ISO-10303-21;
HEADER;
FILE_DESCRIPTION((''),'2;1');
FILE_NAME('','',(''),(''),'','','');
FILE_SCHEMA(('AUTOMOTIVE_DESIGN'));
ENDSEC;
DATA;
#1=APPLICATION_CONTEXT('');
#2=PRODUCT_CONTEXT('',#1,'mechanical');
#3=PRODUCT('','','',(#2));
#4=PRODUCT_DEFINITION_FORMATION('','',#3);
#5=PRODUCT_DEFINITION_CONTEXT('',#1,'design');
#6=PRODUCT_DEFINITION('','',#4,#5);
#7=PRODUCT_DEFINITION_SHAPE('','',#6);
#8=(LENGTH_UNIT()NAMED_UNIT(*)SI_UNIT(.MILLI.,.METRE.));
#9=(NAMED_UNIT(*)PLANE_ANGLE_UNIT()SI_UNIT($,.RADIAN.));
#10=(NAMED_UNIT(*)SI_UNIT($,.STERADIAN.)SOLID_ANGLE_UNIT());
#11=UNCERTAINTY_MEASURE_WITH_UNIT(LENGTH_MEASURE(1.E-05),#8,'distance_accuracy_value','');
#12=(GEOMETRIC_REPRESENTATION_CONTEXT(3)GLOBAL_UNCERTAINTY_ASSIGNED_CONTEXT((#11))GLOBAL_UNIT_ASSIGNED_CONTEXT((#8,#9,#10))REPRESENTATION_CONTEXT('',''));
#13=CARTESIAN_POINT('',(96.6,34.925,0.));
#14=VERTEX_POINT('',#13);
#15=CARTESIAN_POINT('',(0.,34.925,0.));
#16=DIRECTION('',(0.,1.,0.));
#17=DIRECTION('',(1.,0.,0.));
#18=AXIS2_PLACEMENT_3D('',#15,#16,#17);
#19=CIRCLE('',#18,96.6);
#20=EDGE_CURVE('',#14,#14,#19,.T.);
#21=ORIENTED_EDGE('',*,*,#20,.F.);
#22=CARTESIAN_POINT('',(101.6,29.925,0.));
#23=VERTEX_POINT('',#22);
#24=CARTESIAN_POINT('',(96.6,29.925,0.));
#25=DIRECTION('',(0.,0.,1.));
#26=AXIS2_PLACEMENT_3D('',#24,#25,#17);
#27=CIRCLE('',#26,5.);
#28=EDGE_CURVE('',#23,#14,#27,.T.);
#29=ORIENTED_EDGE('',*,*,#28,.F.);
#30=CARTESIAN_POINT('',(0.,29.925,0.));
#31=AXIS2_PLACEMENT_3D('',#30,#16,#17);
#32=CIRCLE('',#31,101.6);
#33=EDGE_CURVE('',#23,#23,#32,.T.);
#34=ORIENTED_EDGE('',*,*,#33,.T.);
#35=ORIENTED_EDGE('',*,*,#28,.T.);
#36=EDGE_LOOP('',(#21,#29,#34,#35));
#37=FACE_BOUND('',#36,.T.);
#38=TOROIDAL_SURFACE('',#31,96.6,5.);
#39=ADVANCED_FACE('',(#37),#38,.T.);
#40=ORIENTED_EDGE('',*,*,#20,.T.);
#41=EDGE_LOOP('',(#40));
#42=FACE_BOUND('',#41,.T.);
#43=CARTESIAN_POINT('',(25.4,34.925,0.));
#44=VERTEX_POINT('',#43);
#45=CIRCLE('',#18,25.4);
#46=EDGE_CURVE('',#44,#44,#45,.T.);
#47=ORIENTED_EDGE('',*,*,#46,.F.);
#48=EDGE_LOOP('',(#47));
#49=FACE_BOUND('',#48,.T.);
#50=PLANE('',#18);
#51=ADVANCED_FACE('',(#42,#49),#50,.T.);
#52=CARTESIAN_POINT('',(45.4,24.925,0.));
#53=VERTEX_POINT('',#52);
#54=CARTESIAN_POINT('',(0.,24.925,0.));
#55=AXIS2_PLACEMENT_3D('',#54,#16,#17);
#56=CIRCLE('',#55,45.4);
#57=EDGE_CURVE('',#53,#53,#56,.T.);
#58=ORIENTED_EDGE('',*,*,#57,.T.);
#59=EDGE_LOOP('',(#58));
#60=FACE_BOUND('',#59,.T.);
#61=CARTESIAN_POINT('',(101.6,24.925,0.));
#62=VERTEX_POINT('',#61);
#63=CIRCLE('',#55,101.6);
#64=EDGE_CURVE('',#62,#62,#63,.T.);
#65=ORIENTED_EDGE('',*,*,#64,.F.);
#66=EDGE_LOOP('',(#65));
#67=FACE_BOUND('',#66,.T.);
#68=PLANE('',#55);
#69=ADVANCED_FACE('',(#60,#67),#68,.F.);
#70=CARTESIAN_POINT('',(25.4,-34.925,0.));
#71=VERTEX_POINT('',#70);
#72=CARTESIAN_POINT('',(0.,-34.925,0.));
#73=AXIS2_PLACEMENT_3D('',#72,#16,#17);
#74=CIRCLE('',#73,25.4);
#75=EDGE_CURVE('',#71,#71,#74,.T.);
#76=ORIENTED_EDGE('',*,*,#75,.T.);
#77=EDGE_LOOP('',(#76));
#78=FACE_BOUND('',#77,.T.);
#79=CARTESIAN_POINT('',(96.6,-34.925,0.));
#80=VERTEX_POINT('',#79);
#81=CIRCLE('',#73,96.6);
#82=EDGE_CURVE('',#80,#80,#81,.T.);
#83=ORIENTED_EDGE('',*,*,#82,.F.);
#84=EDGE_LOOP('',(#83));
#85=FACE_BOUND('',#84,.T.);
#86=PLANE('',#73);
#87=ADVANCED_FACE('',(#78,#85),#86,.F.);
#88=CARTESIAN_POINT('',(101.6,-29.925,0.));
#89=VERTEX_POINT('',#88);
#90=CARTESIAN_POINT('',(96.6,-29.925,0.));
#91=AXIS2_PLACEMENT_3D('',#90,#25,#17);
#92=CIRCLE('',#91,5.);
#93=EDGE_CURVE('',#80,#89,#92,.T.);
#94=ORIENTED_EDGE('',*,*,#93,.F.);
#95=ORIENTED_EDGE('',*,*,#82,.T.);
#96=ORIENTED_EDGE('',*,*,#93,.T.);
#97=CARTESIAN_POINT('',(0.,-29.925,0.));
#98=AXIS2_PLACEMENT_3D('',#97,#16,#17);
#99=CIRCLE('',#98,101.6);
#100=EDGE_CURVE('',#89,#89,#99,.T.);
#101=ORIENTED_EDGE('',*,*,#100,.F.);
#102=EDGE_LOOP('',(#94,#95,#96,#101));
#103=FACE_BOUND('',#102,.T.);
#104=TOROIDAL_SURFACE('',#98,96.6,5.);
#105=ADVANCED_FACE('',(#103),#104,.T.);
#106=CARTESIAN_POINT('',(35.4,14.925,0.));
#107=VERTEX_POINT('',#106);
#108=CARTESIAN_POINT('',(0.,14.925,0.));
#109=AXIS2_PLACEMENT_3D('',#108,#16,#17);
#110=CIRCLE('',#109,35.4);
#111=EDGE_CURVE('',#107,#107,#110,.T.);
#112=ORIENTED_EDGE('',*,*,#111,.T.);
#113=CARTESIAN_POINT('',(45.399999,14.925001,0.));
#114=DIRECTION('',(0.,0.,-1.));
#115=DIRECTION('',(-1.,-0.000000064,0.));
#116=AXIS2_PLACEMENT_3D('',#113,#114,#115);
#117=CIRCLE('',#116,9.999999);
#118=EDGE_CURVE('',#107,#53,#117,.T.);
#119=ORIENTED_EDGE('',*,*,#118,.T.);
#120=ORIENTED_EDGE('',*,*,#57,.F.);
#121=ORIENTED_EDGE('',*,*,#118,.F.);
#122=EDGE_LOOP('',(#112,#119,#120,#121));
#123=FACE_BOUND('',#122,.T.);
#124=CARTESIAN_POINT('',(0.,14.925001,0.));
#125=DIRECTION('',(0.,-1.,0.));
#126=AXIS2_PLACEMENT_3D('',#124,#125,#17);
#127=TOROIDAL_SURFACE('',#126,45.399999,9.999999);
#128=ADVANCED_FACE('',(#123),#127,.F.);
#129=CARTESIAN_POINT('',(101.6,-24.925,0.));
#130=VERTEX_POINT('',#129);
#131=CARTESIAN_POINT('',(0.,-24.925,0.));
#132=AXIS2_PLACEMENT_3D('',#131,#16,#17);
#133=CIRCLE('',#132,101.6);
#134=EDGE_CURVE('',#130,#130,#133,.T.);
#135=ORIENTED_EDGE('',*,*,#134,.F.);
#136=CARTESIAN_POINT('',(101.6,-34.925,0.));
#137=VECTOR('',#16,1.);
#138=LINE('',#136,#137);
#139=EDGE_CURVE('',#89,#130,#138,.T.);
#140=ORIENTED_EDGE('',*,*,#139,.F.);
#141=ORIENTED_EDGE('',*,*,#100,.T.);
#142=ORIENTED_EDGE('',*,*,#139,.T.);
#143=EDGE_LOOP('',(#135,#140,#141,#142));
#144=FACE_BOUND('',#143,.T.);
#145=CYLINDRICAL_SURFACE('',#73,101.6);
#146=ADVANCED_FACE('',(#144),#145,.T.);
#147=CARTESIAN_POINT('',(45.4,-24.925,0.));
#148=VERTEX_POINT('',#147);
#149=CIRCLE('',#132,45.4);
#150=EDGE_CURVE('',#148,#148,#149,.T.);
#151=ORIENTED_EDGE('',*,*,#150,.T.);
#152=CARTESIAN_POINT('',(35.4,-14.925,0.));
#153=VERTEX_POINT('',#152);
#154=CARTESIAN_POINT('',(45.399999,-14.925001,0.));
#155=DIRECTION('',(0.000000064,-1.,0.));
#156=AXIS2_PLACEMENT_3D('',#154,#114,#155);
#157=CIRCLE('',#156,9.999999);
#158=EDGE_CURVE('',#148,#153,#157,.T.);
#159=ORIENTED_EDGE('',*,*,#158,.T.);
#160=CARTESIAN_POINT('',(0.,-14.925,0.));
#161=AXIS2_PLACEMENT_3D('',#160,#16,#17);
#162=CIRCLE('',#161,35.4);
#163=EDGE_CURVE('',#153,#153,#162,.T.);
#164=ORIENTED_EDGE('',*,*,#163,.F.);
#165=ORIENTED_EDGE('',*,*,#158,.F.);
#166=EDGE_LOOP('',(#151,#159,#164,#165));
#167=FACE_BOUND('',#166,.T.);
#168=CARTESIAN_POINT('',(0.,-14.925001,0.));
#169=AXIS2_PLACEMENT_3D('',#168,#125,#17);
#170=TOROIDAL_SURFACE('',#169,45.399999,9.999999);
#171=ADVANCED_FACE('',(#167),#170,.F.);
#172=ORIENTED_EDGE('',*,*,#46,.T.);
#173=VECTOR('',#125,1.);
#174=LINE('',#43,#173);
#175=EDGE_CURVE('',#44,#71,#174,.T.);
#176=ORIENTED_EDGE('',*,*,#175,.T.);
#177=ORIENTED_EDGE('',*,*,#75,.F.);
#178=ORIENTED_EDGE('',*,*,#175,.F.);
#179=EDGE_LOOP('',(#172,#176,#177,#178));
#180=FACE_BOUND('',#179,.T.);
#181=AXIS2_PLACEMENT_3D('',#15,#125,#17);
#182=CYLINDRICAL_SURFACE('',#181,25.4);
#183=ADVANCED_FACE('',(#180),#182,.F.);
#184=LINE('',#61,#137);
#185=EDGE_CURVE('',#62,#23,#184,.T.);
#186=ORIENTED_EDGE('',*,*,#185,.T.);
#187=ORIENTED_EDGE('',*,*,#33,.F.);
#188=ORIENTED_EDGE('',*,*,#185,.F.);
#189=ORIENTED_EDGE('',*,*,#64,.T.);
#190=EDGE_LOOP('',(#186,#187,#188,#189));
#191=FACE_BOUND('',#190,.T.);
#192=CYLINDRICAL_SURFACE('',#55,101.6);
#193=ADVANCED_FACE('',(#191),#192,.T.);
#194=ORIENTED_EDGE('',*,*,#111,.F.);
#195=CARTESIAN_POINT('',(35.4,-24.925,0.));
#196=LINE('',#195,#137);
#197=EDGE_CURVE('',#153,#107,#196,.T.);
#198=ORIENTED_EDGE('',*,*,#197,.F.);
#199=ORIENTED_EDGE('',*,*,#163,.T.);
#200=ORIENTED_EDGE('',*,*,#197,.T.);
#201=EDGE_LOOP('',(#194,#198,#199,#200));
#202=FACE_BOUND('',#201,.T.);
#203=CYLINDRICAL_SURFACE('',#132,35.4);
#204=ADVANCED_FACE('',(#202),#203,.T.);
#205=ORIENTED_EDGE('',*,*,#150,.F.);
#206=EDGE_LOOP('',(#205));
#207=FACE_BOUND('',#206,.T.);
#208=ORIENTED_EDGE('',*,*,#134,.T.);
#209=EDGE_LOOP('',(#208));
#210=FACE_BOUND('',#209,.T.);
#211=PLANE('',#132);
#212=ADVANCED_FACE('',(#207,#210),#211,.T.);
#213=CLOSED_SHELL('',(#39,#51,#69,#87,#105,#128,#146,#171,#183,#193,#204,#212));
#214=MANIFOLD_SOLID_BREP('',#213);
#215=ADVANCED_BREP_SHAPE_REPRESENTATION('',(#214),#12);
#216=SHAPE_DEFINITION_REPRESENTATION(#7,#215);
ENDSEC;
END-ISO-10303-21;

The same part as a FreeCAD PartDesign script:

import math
import FreeCAD as App
import Part
import Sketcher


def edges_at(feature, points):
    """Names of the edges that pass closest to the given points."""
    edges = feature.Shape.Edges
    near = lambda p: min(range(len(edges)), key=lambda i: edges[i].distToShape(Part.Vertex(*p))[0])
    return sorted({f"Edge{near(p) + 1}" for p in points})

doc = App.newDocument("Part")
params = doc.addObject("Spreadsheet::Sheet", "Params")
for row, (alias, value) in enumerate([
    ("sketch1_radius", "9.999999 mm"),
    ("sketch1_height", "10 mm"),
    ("sketch1_width", "56.2 mm"),
    ("sketch1_width2", "76.2 mm"),
    ("sketch1_height2", "29.85 mm"),
    ("revolution_angle", "360 deg"),
    ("fillet_radius", "5 mm"),
], start=1):
    params.set(f"A{row}", alias)
    params.set(f"B{row}", "=" + value)
    params.setAlias(f"B{row}", alias)

body = doc.addObject("PartDesign::Body", "Body")

sketch1 = body.newObject("Sketcher::SketchObject", "Sketch")
sketch1.AttachmentSupport = (doc.getObject("XY_Plane"), [""])
sketch1.MapMode = "FlatFace"
sketch1.addGeometry(Part.LineSegment(App.Vector(35, -15, 0), App.Vector(35, 15, 0)), False)
sketch1.addGeometry(Part.ArcOfCircle(Part.Circle(App.Vector(45, 15, 0), App.Vector(0, 0, 1), 10), math.radians(90), math.radians(180)), False)
sketch1.addGeometry(Part.LineSegment(App.Vector(45, 25, 0), App.Vector(102, 25, 0)), False)
sketch1.addGeometry(Part.LineSegment(App.Vector(102, 25, 0), App.Vector(102, 35, 0)), False)
sketch1.addGeometry(Part.LineSegment(App.Vector(102, 35, 0), App.Vector(25, 35, 0)), False)
sketch1.addGeometry(Part.LineSegment(App.Vector(25, 35, 0), App.Vector(25, -35, 0)), False)
sketch1.addGeometry(Part.LineSegment(App.Vector(25, -35, 0), App.Vector(102, -35, 0)), False)
sketch1.addGeometry(Part.LineSegment(App.Vector(102, -35, 0), App.Vector(102, -25, 0)), False)
sketch1.addGeometry(Part.LineSegment(App.Vector(102, -25, 0), App.Vector(45, -25, 0)), False)
sketch1.addGeometry(Part.ArcOfCircle(Part.Circle(App.Vector(45, -15, 0), App.Vector(0, 0, 1), 10), math.radians(180), math.radians(270)), False)
sketch1.addConstraint(Sketcher.Constraint("Tangent", 0, 2, 1, 2))
sketch1.addConstraint(Sketcher.Constraint("Tangent", 1, 1, 2, 1))
sketch1.addConstraint(Sketcher.Constraint("Coincident", 2, 2, 3, 1))
sketch1.addConstraint(Sketcher.Constraint("Coincident", 3, 2, 4, 1))
sketch1.addConstraint(Sketcher.Constraint("Coincident", 4, 2, 5, 1))
sketch1.addConstraint(Sketcher.Constraint("Coincident", 5, 2, 6, 1))
sketch1.addConstraint(Sketcher.Constraint("Coincident", 6, 2, 7, 1))
sketch1.addConstraint(Sketcher.Constraint("Coincident", 7, 2, 8, 1))
sketch1.addConstraint(Sketcher.Constraint("Tangent", 8, 2, 9, 2))
sketch1.addConstraint(Sketcher.Constraint("Tangent", 9, 1, 0, 1))
sketch1.addConstraint(Sketcher.Constraint("Vertical", 0))
sketch1.addConstraint(Sketcher.Constraint("Horizontal", 2))
sketch1.addConstraint(Sketcher.Constraint("Vertical", 3))
sketch1.addConstraint(Sketcher.Constraint("Horizontal", 4))
sketch1.addConstraint(Sketcher.Constraint("Vertical", 5))
sketch1.addConstraint(Sketcher.Constraint("Horizontal", 6))
sketch1.addConstraint(Sketcher.Constraint("Vertical", 7))
sketch1.addConstraint(Sketcher.Constraint("Horizontal", 8))
sketch1.addConstraint(Sketcher.Constraint("Equal", 1, 9))
sketch1.addConstraint(Sketcher.Constraint("Symmetric", 3, 2, 6, 2, -1))
sketch1.addConstraint(Sketcher.Constraint("Equal", 3, 7))
sketch1.addConstraint(Sketcher.Constraint("Radius", 1, 9.999999))
sketch1.addConstraint(Sketcher.Constraint("DistanceY", 3, 1, 3, 2, 10.0))
sketch1.addConstraint(Sketcher.Constraint("DistanceX", 2, 1, 2, 2, 56.2))
sketch1.addConstraint(Sketcher.Constraint("DistanceX", 4, 2, 4, 1, 76.2))
sketch1.addConstraint(Sketcher.Constraint("DistanceY", 0, 1, 0, 2, 29.85))
sketch1.addConstraint(Sketcher.Constraint("DistanceX", -1, 1, 1, 3, 45.399999))
sketch1.setExpression("Constraints[21]", "Params.sketch1_radius")
sketch1.setExpression("Constraints[22]", "Params.sketch1_height")
sketch1.setExpression("Constraints[23]", "Params.sketch1_width")
sketch1.setExpression("Constraints[24]", "Params.sketch1_width2")
sketch1.setExpression("Constraints[25]", "Params.sketch1_height2")
revolution = body.newObject("PartDesign::Revolution", "Revolution")
revolution.Profile = sketch1
revolution.ReferenceAxis = (sketch1, ["V_Axis"])
revolution.setExpression("Angle", "Params.revolution_angle")
doc.recompute()

fillet = body.newObject("PartDesign::Fillet", "Fillet")
fillet.Base = (revolution, edges_at(revolution, [(-101.6, 34.925, 0), (-101.6, -34.925, 0)]))
fillet.setExpression("Radius", "Params.fillet_radius")

doc.recompute()
